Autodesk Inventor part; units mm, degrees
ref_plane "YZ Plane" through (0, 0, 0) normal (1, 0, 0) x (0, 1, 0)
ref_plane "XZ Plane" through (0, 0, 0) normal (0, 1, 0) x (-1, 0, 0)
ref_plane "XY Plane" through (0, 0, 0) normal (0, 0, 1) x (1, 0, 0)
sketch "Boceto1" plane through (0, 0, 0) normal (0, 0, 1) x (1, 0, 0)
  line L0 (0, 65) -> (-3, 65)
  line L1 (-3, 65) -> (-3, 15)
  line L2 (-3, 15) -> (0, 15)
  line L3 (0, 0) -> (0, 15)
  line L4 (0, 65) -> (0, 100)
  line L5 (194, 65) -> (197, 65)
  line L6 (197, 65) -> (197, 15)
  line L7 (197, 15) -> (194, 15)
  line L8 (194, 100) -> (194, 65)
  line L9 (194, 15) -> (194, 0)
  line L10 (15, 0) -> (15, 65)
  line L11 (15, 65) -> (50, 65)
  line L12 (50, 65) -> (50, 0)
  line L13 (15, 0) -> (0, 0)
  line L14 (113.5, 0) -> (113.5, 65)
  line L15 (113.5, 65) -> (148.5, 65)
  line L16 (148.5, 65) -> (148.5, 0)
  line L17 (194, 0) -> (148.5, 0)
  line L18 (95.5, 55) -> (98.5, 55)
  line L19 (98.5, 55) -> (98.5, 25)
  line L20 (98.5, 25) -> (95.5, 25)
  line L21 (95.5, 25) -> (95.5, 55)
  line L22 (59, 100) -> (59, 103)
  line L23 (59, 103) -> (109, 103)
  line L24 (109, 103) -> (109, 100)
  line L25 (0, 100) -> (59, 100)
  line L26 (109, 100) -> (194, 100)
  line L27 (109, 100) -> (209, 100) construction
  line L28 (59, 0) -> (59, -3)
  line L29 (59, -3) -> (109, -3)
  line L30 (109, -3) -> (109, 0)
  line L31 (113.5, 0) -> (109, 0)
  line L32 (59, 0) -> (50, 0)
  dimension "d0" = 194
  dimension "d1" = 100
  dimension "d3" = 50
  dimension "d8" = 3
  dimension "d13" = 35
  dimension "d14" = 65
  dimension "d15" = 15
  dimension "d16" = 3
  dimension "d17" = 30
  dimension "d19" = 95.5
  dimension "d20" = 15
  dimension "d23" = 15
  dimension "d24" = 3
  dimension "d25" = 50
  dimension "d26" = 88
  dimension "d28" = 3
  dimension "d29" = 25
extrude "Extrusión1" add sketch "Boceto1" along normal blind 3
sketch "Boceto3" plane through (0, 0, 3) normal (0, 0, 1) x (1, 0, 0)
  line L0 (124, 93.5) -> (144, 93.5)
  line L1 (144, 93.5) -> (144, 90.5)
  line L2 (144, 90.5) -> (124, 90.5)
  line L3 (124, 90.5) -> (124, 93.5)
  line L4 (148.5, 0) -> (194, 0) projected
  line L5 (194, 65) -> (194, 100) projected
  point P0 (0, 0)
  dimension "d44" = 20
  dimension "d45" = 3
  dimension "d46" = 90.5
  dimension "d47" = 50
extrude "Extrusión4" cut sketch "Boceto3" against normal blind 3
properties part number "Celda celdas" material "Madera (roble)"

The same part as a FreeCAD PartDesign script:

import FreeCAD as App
import Part
import Sketcher
Q = App.Units.Quantity


def add_polygon(sketch, points):
    """Adds a closed chain of lines whose ends are joined by coincident constraints."""
    first, n = sketch.GeometryCount, len(points)
    for a, b in zip(points, points[1:] + points[:1]):
        sketch.addGeometry(Part.LineSegment(App.Vector(*a, 0), App.Vector(*b, 0)), False)
    for i in range(n):
        sketch.addConstraint(Sketcher.Constraint("Coincident", first + i, 2, first + (i + 1) % n, 1))

doc = App.newDocument("Part")
body = doc.addObject("PartDesign::Body", "Body")

# Sketch on XY plane
sketch1 = body.newObject("Sketcher::SketchObject", "Sketch")
sketch1.AttachmentSupport = (doc.getObject("XY_Plane"), [""])
sketch1.MapMode = "FlatFace"
add_polygon(sketch1, [(0, 100), (0, 65), (-3, 65), (-3, 15), (0, 15), (0, 0), (15, 0), (15, 65), (50, 65), (50, 0), (59, 0), (59, -3), (109, -3), (109, 0), (113.5, 0), (113.5, 65), (148.5, 65), (148.5, 0), (194, 0), (194, 15), (197, 15), (197, 65), (194, 65), (194, 100), (109, 100), (109, 103), (59, 103), (59, 100)])  # lines 0-27
add_polygon(sketch1, [(95.5, 25), (95.5, 55), (98.5, 55), (98.5, 25)])  # lines 28-31
sketch1.addConstraint([
    Sketcher.Constraint("Vertical", 0),
    Sketcher.Constraint("Horizontal", 1),
    Sketcher.Constraint("Vertical", 2),
    Sketcher.Constraint("Horizontal", 3),
    Sketcher.Constraint("Vertical", 4),
    Sketcher.Constraint("Horizontal", 5),
    Sketcher.Constraint("Vertical", 6),
    Sketcher.Constraint("Horizontal", 7),
    Sketcher.Constraint("Vertical", 8),
    Sketcher.Constraint("Horizontal", 9),
    Sketcher.Constraint("Vertical", 10),
    Sketcher.Constraint("Horizontal", 11),
    Sketcher.Constraint("Vertical", 12),
    Sketcher.Constraint("Horizontal", 13),
    Sketcher.Constraint("Vertical", 14),
    Sketcher.Constraint("Horizontal", 15),
    Sketcher.Constraint("Vertical", 16),
    Sketcher.Constraint("Horizontal", 17),
    Sketcher.Constraint("Vertical", 18),
    Sketcher.Constraint("Horizontal", 19),
    Sketcher.Constraint("Vertical", 20),
    Sketcher.Constraint("Horizontal", 21),
    Sketcher.Constraint("Vertical", 22),
    Sketcher.Constraint("Horizontal", 23),
    Sketcher.Constraint("Vertical", 24),
    Sketcher.Constraint("Horizontal", 25),
    Sketcher.Constraint("Vertical", 26),
    Sketcher.Constraint("Horizontal", 27),
    Sketcher.Constraint("Vertical", 28),
    Sketcher.Constraint("Horizontal", 29),
    Sketcher.Constraint("Vertical", 30),
    Sketcher.Constraint("Horizontal", 31),
    Sketcher.Constraint("Coincident", 4, 2, -1, 1),
    Sketcher.Constraint("PointOnObject", 0, 2, -2),
    Sketcher.Constraint("PointOnObject", 8, 2, -1),
    Sketcher.Constraint("PointOnObject", 12, 2, -1),
    Sketcher.Constraint("PointOnObject", 16, 2, -1),
    Sketcher.Constraint("Horizontal", 1, 2, 6, 2),
    Sketcher.Constraint("Horizontal", 7, 2, 14, 2),
    Sketcher.Constraint("Horizontal", 3, 2, 18, 2),
    Sketcher.Constraint("Horizontal", 15, 2, 20, 2),
    Sketcher.Constraint("Horizontal", 23, 2, 26, 2),
    Sketcher.Constraint("Vertical", 18, 2, 21, 2),
    Sketcher.Constraint("Vertical", 12, 2, 23, 2),
    Sketcher.Constraint("Vertical", 10, 2, 25, 2),
    Sketcher.Constraint("Equal", 7, 15),
    Sketcher.Constraint("Equal", 3, 19),
    Sketcher.Constraint("Equal", 21, 29),
    Sketcher.Constraint("Equal", 15, 0),
    Sketcher.Constraint("Equal", 25, 2),
    Sketcher.Constraint("Equal", 5, 4),
    Sketcher.Constraint("Equal", 31, 10),
    Sketcher.Constraint("Equal", 12, 24),
    Sketcher.Constraint("DistanceX", 1, 2, 1, 1, Q("3 mm")),
    Sketcher.Constraint("DistanceX", 5, 1, 5, 2, Q("15 mm")),
    Sketcher.Constraint("DistanceX", 7, 1, 7, 2, Q("35 mm")),
    Sketcher.Constraint("DistanceX", 11, 1, 11, 2, Q("50 mm")),
    Sketcher.Constraint("DistanceY", 28, 1, 28, 2, Q("30 mm")),
    Sketcher.Constraint("DistanceX", -1, 1, 17, 2, Q("194 mm")),
    Sketcher.Constraint("DistanceY", -1, 1, 30, 2, Q("25 mm")),
    Sketcher.Constraint("DistanceX", 29, 2, 14, 2, Q("15 mm")),
    Sketcher.Constraint("DistanceX", -1, 1, 28, 2, Q("95.5 mm")),
    Sketcher.Constraint("DistanceX", 9, 1, 9, 2, Q("9 mm")),
])
pad1 = body.newObject("PartDesign::Pad", "Pad")
pad1.Profile = sketch1
pad1.Length = 3

# Sketch on XY plane
sketch2 = body.newObject("Sketcher::SketchObject", "Sketch001")
sketch2.AttachmentSupport = (doc.getObject("XY_Plane"), [""])
sketch2.MapMode = "FlatFace"
sketch2.AttachmentOffset = App.Placement(App.Vector(0, 0, 3), App.Rotation())
add_polygon(sketch2, [(144, 93.5), (124, 93.5), (124, 90.5), (144, 90.5)])  # lines 0-3
sketch2.addConstraint([
    Sketcher.Constraint("Horizontal", 0),
    Sketcher.Constraint("Vertical", 1),
    Sketcher.Constraint("Horizontal", 2),
    Sketcher.Constraint("Vertical", 3),
    Sketcher.Constraint("DistanceX", 0, 2, 0, 1, Q("20 mm")),
    Sketcher.Constraint("DistanceY", 1, 2, 1, 1, Q("3 mm")),
    Sketcher.Constraint("DistanceY", -1, 1, 1, 2, Q("90.5 mm")),
    Sketcher.Constraint("DistanceX", -1, 1, 0, 2, Q("124 mm")),
])
pocket1 = body.newObject("PartDesign::Pocket", "Pocket")
pocket1.Profile = sketch2
pocket1.Length = 3

doc.recompute()
